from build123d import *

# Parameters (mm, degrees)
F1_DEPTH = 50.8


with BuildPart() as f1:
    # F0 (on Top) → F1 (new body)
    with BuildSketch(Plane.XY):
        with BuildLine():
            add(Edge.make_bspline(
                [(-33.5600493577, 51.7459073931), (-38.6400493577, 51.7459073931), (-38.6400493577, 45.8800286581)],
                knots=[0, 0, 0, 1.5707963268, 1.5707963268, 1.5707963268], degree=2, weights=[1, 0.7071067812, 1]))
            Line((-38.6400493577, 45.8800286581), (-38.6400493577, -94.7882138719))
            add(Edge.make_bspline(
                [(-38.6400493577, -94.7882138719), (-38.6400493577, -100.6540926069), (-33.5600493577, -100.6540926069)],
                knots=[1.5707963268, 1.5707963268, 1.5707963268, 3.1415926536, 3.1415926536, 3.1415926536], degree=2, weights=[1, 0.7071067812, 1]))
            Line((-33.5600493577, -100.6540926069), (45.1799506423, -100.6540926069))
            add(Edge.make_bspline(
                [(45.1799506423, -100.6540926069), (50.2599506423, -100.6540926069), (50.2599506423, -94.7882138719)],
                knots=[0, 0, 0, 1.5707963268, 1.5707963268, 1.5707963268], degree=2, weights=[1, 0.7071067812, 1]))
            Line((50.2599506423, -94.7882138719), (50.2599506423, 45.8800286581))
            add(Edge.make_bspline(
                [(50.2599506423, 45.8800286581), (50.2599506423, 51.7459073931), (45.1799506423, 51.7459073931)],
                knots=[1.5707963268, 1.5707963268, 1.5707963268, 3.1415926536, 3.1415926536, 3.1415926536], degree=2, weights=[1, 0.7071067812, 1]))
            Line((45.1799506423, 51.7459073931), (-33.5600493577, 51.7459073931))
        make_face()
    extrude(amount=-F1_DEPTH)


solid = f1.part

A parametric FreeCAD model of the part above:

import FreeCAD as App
import Part
import Sketcher
from FreeCAD import Vector

doc = App.newDocument("Part")
params = doc.addObject("Spreadsheet::Sheet", "Params")
for row, (alias, value) in enumerate([
    ("pad1_length", "2 in"),
], start=1):
    params.set(f"A{row}", alias)
    params.set(f"B{row}", "=" + value)
    params.setAlias(f"B{row}", alias)

body = doc.addObject("PartDesign::Body", "Body")

# Sketch on XY plane
sketch1 = body.newObject("Sketcher::SketchObject", "Sketch")
sketch1.AttachmentSupport = (doc.getObject("XY_Plane"), [""])
sketch1.MapMode = "FlatFace"
sketch1.addGeometry([
    Part.BSplineCurve([Vector(-33.560049, 51.745907, 0), Vector(-38.640049, 51.745907, 0), Vector(-38.640049, 45.880029, 0)], [3, 3], [0, 1.570796327], False, 2, [1, 0.707106781, 1], False),  # 0
    Part.LineSegment(Vector(-38.640049, 45.880029, 0), Vector(-38.640049, -94.788214, 0)),  # 1
    Part.BSplineCurve([Vector(-38.640049, -94.788214, 0), Vector(-38.640049, -100.654093, 0), Vector(-33.560049, -100.654093, 0)], [3, 3], [1.570796327, 3.141592654], False, 2, [1, 0.707106781, 1], False),  # 2
    Part.LineSegment(Vector(-33.560049, -100.654093, 0), Vector(45.179951, -100.654093, 0)),  # 3
    Part.BSplineCurve([Vector(45.179951, -100.654093, 0), Vector(50.259951, -100.654093, 0), Vector(50.259951, -94.788214, 0)], [3, 3], [0, 1.570796327], False, 2, [1, 0.707106781, 1], False),  # 4
    Part.LineSegment(Vector(50.259951, -94.788214, 0), Vector(50.259951, 45.880029, 0)),  # 5
    Part.BSplineCurve([Vector(50.259951, 45.880029, 0), Vector(50.259951, 51.745907, 0), Vector(45.179951, 51.745907, 0)], [3, 3], [1.570796327, 3.141592654], False, 2, [1, 0.707106781, 1], False),  # 6
    Part.LineSegment(Vector(45.179951, 51.745907, 0), Vector(-33.560049, 51.745907, 0)),  # 7
], False)
sketch1.addConstraint([
    Sketcher.Constraint("Block", 0),
    Sketcher.Constraint("Block", 2),
    Sketcher.Constraint("Block", 4),
    Sketcher.Constraint("Block", 6),
    Sketcher.Constraint("Coincident", 0, 2, 1, 1),
    Sketcher.Constraint("Coincident", 1, 2, 2, 1),
    Sketcher.Constraint("Coincident", 2, 2, 3, 1),
    Sketcher.Constraint("Coincident", 3, 2, 4, 1),
    Sketcher.Constraint("Coincident", 4, 2, 5, 1),
    Sketcher.Constraint("Coincident", 5, 2, 6, 1),
    Sketcher.Constraint("Coincident", 6, 2, 7, 1),
    Sketcher.Constraint("Coincident", 7, 2, 0, 1),
])
pad1 = body.newObject("PartDesign::Pad", "Pad")
pad1.Profile = sketch1
pad1.setExpression("Length", "Params.pad1_length")
pad1.Reversed = True

doc.recompute()
